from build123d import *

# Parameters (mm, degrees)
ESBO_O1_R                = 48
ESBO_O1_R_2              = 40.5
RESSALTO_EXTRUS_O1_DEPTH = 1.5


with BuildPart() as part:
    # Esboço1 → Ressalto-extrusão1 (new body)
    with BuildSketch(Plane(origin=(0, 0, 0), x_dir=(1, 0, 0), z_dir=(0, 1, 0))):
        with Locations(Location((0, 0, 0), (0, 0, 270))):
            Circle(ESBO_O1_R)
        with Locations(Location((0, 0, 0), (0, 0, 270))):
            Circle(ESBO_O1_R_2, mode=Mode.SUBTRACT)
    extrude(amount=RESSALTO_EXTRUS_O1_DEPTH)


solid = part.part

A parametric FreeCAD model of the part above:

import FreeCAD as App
import Part
import Sketcher
from FreeCAD import Vector

doc = App.newDocument("Part")
body = doc.addObject("PartDesign::Body", "Body")

# Sketch on XZ plane
sketch1 = body.newObject("Sketcher::SketchObject", "Sketch")
sketch1.AttachmentSupport = (doc.getObject("XZ_Plane"), [""])
sketch1.MapMode = "FlatFace"
sketch1.addGeometry([
    Part.Circle(Vector(0, 0, 0), Vector(0, 0, 1), 48),
    Part.Circle(Vector(0, 0, 0), Vector(0, 0, 1), 40),
], False)
sketch1.addConstraint([
    Sketcher.Constraint("Coincident", 0, 3, -1, 1),
    Sketcher.Constraint("Coincident", 1, 3, -1, 1),
    Sketcher.Constraint("Diameter", 0, 96.0),
    Sketcher.Constraint("Diameter", 1, 81.0),
])
pad1 = body.newObject("PartDesign::Pad", "Pad")
pad1.Profile = sketch1
pad1.Length = 1.5
pad1.Reversed = True

doc.recompute()
